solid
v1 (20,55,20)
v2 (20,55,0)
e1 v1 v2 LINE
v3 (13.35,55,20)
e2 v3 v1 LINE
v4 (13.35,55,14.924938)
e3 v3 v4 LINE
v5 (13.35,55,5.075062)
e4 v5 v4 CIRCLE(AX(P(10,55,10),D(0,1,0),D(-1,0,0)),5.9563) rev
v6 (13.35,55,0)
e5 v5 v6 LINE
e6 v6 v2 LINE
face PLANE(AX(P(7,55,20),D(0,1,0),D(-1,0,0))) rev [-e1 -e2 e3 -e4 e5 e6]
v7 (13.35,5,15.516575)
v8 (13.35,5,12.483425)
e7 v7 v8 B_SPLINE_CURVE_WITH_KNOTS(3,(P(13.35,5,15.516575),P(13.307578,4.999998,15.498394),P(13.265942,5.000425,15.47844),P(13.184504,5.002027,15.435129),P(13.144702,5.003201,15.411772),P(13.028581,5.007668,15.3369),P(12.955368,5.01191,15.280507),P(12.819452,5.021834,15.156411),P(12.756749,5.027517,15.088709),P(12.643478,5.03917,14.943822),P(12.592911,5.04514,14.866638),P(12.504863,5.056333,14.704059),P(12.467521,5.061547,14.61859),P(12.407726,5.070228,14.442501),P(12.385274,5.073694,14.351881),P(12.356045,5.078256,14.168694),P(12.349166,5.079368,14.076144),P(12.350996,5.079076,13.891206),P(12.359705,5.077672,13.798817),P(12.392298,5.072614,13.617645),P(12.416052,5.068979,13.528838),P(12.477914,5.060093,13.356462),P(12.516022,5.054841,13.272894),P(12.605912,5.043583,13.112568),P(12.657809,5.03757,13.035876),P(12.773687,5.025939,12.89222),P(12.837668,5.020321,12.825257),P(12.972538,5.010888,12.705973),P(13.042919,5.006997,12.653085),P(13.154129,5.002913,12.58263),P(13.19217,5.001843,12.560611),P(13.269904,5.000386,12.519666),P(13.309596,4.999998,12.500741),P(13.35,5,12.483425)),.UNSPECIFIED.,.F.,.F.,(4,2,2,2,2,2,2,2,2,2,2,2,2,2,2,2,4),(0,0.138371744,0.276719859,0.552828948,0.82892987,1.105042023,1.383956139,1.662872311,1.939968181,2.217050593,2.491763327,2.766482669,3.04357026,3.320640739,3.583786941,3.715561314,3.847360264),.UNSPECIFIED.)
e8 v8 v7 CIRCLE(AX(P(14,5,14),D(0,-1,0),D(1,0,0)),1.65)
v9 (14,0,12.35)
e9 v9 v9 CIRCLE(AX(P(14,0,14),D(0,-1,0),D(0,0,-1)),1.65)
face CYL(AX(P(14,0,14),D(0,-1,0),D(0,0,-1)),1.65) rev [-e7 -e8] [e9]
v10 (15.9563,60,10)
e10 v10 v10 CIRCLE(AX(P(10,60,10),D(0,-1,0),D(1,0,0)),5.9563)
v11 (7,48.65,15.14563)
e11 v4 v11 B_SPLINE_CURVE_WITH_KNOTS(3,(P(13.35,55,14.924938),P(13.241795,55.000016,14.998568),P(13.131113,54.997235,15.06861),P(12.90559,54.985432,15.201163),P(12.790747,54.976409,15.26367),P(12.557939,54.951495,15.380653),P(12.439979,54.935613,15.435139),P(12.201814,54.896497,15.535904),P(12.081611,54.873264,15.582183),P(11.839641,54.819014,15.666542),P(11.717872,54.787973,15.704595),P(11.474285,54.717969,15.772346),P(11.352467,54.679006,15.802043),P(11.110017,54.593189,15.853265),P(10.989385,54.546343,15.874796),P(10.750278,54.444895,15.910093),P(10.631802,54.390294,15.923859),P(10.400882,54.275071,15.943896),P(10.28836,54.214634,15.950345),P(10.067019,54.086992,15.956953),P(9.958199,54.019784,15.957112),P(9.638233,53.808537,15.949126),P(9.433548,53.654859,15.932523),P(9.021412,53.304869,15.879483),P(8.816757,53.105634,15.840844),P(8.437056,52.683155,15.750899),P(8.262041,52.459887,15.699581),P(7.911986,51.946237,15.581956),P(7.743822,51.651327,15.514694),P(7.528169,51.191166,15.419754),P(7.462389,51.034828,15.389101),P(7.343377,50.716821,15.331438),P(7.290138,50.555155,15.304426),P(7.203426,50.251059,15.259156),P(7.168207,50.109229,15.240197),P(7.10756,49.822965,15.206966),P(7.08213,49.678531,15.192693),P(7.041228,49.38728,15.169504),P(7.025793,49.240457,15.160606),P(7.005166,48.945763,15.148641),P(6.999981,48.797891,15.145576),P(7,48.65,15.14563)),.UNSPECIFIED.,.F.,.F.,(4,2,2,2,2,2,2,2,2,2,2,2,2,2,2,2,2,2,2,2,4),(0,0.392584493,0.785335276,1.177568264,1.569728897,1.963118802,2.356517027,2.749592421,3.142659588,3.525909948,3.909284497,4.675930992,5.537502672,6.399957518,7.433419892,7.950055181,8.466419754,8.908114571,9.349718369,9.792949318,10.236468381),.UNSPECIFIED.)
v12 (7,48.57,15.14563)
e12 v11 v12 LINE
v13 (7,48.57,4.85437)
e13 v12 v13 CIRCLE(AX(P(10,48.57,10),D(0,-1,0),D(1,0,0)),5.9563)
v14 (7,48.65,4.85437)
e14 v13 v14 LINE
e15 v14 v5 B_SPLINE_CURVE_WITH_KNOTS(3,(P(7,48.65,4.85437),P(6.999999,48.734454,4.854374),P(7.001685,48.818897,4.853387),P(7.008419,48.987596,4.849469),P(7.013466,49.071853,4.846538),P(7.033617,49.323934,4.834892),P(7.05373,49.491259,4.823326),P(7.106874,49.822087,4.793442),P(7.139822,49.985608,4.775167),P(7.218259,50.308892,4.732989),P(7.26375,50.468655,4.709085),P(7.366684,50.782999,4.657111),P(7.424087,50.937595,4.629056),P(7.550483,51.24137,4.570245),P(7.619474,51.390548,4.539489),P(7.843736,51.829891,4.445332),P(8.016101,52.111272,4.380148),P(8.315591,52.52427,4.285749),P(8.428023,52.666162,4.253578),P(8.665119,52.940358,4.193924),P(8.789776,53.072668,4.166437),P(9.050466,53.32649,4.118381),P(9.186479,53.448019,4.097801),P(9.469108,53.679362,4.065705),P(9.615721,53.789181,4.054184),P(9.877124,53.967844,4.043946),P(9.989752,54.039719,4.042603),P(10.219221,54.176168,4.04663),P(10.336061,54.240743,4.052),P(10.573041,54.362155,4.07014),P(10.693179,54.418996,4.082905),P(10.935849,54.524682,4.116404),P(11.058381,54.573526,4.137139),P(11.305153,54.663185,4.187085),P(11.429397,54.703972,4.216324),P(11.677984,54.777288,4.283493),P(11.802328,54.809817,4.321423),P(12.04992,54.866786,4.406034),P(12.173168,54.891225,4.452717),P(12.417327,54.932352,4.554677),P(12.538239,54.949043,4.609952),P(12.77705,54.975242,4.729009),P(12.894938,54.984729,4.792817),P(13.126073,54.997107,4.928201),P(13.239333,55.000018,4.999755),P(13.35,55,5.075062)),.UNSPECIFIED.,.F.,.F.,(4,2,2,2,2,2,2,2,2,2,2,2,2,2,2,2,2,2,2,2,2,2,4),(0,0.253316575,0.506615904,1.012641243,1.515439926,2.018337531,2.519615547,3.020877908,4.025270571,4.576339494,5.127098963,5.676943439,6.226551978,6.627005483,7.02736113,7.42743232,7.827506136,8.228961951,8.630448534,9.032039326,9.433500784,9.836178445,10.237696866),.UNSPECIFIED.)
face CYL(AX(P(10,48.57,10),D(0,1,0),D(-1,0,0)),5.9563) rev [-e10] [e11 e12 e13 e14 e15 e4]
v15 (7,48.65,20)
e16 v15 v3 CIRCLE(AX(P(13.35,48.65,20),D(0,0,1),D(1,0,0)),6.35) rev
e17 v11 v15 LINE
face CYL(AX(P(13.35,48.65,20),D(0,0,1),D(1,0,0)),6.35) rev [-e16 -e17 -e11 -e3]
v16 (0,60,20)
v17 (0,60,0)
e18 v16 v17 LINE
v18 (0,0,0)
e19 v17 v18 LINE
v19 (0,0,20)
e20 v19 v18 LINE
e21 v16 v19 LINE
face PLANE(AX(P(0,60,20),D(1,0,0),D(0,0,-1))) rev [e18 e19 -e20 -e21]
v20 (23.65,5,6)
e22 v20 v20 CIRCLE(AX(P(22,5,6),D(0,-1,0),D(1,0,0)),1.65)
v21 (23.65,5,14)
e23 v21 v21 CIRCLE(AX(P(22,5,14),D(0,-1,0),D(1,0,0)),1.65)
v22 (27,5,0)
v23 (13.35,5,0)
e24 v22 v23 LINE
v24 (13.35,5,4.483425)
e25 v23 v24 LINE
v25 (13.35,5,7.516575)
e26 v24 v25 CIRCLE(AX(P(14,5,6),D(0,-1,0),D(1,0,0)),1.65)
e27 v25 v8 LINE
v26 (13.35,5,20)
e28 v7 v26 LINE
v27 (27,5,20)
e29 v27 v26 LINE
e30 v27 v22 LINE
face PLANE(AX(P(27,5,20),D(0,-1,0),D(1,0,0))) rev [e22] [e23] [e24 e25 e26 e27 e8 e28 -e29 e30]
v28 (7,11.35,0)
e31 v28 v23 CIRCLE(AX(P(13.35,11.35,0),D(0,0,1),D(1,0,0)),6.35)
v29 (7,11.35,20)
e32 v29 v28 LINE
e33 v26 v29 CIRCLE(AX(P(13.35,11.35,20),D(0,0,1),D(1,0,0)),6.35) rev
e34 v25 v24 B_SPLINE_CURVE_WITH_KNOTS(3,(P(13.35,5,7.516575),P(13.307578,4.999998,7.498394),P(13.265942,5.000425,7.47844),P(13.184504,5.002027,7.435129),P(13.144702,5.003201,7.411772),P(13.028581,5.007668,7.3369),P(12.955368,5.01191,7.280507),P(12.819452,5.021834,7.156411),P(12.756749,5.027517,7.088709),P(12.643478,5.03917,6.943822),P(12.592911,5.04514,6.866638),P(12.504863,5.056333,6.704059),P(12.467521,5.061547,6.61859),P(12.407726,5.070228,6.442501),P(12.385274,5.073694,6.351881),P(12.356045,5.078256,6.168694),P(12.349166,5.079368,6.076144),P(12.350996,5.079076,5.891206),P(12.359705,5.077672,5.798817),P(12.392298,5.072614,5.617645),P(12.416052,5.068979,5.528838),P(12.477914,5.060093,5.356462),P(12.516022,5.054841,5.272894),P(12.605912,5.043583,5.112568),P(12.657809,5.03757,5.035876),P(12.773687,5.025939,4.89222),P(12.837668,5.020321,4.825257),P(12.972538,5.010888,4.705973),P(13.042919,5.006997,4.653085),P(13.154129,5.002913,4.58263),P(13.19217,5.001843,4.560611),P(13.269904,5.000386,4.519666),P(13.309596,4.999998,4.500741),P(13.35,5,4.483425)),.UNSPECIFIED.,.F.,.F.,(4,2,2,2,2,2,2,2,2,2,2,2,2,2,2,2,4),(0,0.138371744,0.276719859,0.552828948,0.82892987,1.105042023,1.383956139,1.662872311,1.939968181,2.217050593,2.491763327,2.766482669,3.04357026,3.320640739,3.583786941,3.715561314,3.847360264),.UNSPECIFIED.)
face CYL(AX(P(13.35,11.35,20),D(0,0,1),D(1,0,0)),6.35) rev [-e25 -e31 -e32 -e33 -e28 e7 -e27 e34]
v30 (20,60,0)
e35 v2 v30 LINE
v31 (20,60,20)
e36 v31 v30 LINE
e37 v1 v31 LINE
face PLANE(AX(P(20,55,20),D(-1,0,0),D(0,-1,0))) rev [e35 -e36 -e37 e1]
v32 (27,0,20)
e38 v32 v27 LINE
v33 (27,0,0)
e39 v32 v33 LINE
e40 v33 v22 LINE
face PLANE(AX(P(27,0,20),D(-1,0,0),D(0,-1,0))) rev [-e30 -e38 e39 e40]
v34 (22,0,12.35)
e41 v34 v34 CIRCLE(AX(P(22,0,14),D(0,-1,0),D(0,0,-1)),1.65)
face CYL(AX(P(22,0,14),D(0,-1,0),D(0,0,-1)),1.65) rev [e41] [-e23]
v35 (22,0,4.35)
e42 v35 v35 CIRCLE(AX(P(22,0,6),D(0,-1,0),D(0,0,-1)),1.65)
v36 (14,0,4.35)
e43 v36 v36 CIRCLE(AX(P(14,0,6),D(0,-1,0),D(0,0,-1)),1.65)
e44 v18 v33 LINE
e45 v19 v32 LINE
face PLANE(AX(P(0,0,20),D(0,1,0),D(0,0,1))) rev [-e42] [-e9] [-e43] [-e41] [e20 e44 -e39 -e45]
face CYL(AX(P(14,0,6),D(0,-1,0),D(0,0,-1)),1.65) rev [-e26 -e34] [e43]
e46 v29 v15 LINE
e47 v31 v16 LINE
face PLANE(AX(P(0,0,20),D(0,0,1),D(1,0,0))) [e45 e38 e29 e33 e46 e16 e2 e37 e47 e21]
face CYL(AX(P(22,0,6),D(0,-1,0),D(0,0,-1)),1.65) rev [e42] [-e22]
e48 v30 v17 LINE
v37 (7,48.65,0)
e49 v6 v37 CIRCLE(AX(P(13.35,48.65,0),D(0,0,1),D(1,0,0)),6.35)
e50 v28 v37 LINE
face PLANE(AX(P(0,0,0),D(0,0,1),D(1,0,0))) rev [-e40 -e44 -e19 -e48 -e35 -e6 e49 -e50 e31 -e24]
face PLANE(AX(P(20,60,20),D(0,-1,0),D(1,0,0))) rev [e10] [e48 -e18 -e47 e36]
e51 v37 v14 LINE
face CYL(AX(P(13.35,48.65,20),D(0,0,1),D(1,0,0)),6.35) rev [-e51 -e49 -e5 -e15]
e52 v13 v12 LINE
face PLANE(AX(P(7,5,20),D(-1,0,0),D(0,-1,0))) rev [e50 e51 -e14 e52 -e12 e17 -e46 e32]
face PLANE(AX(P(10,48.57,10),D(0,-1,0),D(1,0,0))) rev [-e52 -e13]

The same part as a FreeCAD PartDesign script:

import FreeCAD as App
import Part
import Sketcher
from FreeCAD import Vector


def edges_at(feature, points):
    """Names of the edges that pass closest to the given points."""
    edges = feature.Shape.Edges
    near = lambda p: min(range(len(edges)), key=lambda i: edges[i].distToShape(Part.Vertex(*p))[0])
    return sorted({f"Edge{near(p) + 1}" for p in points})

doc = App.newDocument("Part")
body = doc.addObject("PartDesign::Body", "Body")

sketch1 = body.newObject("Sketcher::SketchObject", "Sketch")
sketch1.AttachmentSupport = (doc.getObject("XY_Plane"), [""])
sketch1.MapMode = "FlatFace"
sketch1.addGeometry(Part.LineSegment(Vector(0, 0, 0), Vector(27, 0, 0)), False)
sketch1.addGeometry(Part.LineSegment(Vector(27, 0, 0), Vector(27, 5, 0)), False)
sketch1.addGeometry(Part.LineSegment(Vector(27, 5, 0), Vector(7, 5, 0)), False)
sketch1.addGeometry(Part.LineSegment(Vector(7, 5, 0), Vector(7, 55, 0)), False)
sketch1.addGeometry(Part.LineSegment(Vector(7, 55, 0), Vector(20, 55, 0)), False)
sketch1.addGeometry(Part.LineSegment(Vector(20, 55, 0), Vector(20, 60, 0)), False)
sketch1.addGeometry(Part.LineSegment(Vector(20, 60, 0), Vector(0, 60, 0)), False)
sketch1.addGeometry(Part.LineSegment(Vector(0, 60, 0), Vector(0, 0, 0)), False)
sketch1.addConstraint(Sketcher.Constraint("Coincident", 0, 2, 1, 1))
sketch1.addConstraint(Sketcher.Constraint("Coincident", 1, 2, 2, 1))
sketch1.addConstraint(Sketcher.Constraint("Coincident", 2, 2, 3, 1))
sketch1.addConstraint(Sketcher.Constraint("Coincident", 3, 2, 4, 1))
sketch1.addConstraint(Sketcher.Constraint("Coincident", 4, 2, 5, 1))
sketch1.addConstraint(Sketcher.Constraint("Coincident", 5, 2, 6, 1))
sketch1.addConstraint(Sketcher.Constraint("Coincident", 6, 2, 7, 1))
sketch1.addConstraint(Sketcher.Constraint("Coincident", 7, 2, 0, 1))
sketch1.addConstraint(Sketcher.Constraint("Horizontal", 0))
sketch1.addConstraint(Sketcher.Constraint("Vertical", 1))
sketch1.addConstraint(Sketcher.Constraint("Horizontal", 2))
sketch1.addConstraint(Sketcher.Constraint("Vertical", 3))
sketch1.addConstraint(Sketcher.Constraint("Horizontal", 4))
sketch1.addConstraint(Sketcher.Constraint("Vertical", 5))
sketch1.addConstraint(Sketcher.Constraint("Horizontal", 6))
sketch1.addConstraint(Sketcher.Constraint("Vertical", 7))
sketch1.addConstraint(Sketcher.Constraint("Coincident", 7, 2, -1, 1))
sketch1.addConstraint(Sketcher.Constraint("Equal", 2, 6))
sketch1.addConstraint(Sketcher.Constraint("Equal", 1, 5))
sketch1.addConstraint(Sketcher.Constraint("DistanceX", 0, 1, 0, 2, 27.0))
sketch1.addConstraint(Sketcher.Constraint("DistanceX", 2, 2, 2, 1, 20.0))
sketch1.addConstraint(Sketcher.Constraint("DistanceY", 1, 1, 1, 2, 5.0))
sketch1.addConstraint(Sketcher.Constraint("DistanceY", 3, 1, 3, 2, 50.0))
pad1 = body.newObject("PartDesign::Pad", "Pad")
pad1.Profile = sketch1
pad1.Length = 20
doc.recompute()

fillet = body.newObject("PartDesign::Fillet", "Fillet")
fillet.Base = (pad1, edges_at(pad1, [(7, 55, 10), (7, 5, 10)]))
fillet.Radius = 6.35

sketch2 = body.newObject("Sketcher::SketchObject", "Sketch001")
sketch2.AttachmentSupport = (doc.getObject("XZ_Plane"), [""])
sketch2.MapMode = "FlatFace"
sketch2.addGeometry(Part.Circle(Vector(22, 14, 0), Vector(0, 0, 1), 1.6), False)
sketch2.addGeometry(Part.Circle(Vector(22, 6, 0), Vector(0, 0, 1), 1.6), False)
sketch2.addGeometry(Part.Circle(Vector(14, 6, 0), Vector(0, 0, 1), 1.6), False)
sketch2.addGeometry(Part.Circle(Vector(14, 14, 0), Vector(0, 0, 1), 1.6), False)
sketch2.addConstraint(Sketcher.Constraint("Equal", 0, 1))
sketch2.addConstraint(Sketcher.Constraint("Equal", 1, 2))
sketch2.addConstraint(Sketcher.Constraint("Equal", 2, 3))
sketch2.addConstraint(Sketcher.Constraint("Horizontal", 1, 3, 2, 3))
sketch2.addConstraint(Sketcher.Constraint("Horizontal", 0, 3, 3, 3))
sketch2.addConstraint(Sketcher.Constraint("Vertical", 0, 3, 1, 3))
sketch2.addConstraint(Sketcher.Constraint("Vertical", 2, 3, 3, 3))
sketch2.addConstraint(Sketcher.Constraint("Diameter", 0, 3.3))
sketch2.addConstraint(Sketcher.Constraint("DistanceX", -1, 1, 0, 3, 22.0))
sketch2.addConstraint(Sketcher.Constraint("DistanceY", -1, 1, 0, 3, 14.0))
sketch2.addConstraint(Sketcher.Constraint("DistanceY", -1, 1, 1, 3, 6.0))
sketch2.addConstraint(Sketcher.Constraint("DistanceX", -1, 1, 2, 3, 14.0))
doc.recompute()
hole = body.newObject("PartDesign::Hole", "Hole")
hole.Profile = sketch2
hole.ThreadType = "None"
hole.Diameter = 3.3
hole.DepthType = "Dimension"
hole.Depth = 10.1
hole.DrillPoint = "Angled"
hole.DrillPointAngle = 118

sketch3 = body.newObject("Sketcher::SketchObject", "Sketch002")
sketch3.AttachmentSupport = (doc.getObject("XZ_Plane"), [""])
sketch3.MapMode = "FlatFace"
sketch3.AttachmentOffset = App.Placement(Vector(0, 0, -60), App.Rotation())
sketch3.addGeometry(Part.Circle(Vector(10, 10, 0), Vector(0, 0, 1), 6), False)
sketch3.addConstraint(Sketcher.Constraint("DistanceX", -1, 1, 0, 3, 10.0))
sketch3.addConstraint(Sketcher.Constraint("DistanceY", -1, 1, 0, 3, 10.0))
sketch3.addConstraint(Sketcher.Constraint("Diameter", 0, 11.9126))
pocket1 = body.newObject("PartDesign::Pocket", "Pocket")
pocket1.Profile = sketch3
pocket1.Length = 11.43
pocket1.Reversed = True

doc.recompute()
